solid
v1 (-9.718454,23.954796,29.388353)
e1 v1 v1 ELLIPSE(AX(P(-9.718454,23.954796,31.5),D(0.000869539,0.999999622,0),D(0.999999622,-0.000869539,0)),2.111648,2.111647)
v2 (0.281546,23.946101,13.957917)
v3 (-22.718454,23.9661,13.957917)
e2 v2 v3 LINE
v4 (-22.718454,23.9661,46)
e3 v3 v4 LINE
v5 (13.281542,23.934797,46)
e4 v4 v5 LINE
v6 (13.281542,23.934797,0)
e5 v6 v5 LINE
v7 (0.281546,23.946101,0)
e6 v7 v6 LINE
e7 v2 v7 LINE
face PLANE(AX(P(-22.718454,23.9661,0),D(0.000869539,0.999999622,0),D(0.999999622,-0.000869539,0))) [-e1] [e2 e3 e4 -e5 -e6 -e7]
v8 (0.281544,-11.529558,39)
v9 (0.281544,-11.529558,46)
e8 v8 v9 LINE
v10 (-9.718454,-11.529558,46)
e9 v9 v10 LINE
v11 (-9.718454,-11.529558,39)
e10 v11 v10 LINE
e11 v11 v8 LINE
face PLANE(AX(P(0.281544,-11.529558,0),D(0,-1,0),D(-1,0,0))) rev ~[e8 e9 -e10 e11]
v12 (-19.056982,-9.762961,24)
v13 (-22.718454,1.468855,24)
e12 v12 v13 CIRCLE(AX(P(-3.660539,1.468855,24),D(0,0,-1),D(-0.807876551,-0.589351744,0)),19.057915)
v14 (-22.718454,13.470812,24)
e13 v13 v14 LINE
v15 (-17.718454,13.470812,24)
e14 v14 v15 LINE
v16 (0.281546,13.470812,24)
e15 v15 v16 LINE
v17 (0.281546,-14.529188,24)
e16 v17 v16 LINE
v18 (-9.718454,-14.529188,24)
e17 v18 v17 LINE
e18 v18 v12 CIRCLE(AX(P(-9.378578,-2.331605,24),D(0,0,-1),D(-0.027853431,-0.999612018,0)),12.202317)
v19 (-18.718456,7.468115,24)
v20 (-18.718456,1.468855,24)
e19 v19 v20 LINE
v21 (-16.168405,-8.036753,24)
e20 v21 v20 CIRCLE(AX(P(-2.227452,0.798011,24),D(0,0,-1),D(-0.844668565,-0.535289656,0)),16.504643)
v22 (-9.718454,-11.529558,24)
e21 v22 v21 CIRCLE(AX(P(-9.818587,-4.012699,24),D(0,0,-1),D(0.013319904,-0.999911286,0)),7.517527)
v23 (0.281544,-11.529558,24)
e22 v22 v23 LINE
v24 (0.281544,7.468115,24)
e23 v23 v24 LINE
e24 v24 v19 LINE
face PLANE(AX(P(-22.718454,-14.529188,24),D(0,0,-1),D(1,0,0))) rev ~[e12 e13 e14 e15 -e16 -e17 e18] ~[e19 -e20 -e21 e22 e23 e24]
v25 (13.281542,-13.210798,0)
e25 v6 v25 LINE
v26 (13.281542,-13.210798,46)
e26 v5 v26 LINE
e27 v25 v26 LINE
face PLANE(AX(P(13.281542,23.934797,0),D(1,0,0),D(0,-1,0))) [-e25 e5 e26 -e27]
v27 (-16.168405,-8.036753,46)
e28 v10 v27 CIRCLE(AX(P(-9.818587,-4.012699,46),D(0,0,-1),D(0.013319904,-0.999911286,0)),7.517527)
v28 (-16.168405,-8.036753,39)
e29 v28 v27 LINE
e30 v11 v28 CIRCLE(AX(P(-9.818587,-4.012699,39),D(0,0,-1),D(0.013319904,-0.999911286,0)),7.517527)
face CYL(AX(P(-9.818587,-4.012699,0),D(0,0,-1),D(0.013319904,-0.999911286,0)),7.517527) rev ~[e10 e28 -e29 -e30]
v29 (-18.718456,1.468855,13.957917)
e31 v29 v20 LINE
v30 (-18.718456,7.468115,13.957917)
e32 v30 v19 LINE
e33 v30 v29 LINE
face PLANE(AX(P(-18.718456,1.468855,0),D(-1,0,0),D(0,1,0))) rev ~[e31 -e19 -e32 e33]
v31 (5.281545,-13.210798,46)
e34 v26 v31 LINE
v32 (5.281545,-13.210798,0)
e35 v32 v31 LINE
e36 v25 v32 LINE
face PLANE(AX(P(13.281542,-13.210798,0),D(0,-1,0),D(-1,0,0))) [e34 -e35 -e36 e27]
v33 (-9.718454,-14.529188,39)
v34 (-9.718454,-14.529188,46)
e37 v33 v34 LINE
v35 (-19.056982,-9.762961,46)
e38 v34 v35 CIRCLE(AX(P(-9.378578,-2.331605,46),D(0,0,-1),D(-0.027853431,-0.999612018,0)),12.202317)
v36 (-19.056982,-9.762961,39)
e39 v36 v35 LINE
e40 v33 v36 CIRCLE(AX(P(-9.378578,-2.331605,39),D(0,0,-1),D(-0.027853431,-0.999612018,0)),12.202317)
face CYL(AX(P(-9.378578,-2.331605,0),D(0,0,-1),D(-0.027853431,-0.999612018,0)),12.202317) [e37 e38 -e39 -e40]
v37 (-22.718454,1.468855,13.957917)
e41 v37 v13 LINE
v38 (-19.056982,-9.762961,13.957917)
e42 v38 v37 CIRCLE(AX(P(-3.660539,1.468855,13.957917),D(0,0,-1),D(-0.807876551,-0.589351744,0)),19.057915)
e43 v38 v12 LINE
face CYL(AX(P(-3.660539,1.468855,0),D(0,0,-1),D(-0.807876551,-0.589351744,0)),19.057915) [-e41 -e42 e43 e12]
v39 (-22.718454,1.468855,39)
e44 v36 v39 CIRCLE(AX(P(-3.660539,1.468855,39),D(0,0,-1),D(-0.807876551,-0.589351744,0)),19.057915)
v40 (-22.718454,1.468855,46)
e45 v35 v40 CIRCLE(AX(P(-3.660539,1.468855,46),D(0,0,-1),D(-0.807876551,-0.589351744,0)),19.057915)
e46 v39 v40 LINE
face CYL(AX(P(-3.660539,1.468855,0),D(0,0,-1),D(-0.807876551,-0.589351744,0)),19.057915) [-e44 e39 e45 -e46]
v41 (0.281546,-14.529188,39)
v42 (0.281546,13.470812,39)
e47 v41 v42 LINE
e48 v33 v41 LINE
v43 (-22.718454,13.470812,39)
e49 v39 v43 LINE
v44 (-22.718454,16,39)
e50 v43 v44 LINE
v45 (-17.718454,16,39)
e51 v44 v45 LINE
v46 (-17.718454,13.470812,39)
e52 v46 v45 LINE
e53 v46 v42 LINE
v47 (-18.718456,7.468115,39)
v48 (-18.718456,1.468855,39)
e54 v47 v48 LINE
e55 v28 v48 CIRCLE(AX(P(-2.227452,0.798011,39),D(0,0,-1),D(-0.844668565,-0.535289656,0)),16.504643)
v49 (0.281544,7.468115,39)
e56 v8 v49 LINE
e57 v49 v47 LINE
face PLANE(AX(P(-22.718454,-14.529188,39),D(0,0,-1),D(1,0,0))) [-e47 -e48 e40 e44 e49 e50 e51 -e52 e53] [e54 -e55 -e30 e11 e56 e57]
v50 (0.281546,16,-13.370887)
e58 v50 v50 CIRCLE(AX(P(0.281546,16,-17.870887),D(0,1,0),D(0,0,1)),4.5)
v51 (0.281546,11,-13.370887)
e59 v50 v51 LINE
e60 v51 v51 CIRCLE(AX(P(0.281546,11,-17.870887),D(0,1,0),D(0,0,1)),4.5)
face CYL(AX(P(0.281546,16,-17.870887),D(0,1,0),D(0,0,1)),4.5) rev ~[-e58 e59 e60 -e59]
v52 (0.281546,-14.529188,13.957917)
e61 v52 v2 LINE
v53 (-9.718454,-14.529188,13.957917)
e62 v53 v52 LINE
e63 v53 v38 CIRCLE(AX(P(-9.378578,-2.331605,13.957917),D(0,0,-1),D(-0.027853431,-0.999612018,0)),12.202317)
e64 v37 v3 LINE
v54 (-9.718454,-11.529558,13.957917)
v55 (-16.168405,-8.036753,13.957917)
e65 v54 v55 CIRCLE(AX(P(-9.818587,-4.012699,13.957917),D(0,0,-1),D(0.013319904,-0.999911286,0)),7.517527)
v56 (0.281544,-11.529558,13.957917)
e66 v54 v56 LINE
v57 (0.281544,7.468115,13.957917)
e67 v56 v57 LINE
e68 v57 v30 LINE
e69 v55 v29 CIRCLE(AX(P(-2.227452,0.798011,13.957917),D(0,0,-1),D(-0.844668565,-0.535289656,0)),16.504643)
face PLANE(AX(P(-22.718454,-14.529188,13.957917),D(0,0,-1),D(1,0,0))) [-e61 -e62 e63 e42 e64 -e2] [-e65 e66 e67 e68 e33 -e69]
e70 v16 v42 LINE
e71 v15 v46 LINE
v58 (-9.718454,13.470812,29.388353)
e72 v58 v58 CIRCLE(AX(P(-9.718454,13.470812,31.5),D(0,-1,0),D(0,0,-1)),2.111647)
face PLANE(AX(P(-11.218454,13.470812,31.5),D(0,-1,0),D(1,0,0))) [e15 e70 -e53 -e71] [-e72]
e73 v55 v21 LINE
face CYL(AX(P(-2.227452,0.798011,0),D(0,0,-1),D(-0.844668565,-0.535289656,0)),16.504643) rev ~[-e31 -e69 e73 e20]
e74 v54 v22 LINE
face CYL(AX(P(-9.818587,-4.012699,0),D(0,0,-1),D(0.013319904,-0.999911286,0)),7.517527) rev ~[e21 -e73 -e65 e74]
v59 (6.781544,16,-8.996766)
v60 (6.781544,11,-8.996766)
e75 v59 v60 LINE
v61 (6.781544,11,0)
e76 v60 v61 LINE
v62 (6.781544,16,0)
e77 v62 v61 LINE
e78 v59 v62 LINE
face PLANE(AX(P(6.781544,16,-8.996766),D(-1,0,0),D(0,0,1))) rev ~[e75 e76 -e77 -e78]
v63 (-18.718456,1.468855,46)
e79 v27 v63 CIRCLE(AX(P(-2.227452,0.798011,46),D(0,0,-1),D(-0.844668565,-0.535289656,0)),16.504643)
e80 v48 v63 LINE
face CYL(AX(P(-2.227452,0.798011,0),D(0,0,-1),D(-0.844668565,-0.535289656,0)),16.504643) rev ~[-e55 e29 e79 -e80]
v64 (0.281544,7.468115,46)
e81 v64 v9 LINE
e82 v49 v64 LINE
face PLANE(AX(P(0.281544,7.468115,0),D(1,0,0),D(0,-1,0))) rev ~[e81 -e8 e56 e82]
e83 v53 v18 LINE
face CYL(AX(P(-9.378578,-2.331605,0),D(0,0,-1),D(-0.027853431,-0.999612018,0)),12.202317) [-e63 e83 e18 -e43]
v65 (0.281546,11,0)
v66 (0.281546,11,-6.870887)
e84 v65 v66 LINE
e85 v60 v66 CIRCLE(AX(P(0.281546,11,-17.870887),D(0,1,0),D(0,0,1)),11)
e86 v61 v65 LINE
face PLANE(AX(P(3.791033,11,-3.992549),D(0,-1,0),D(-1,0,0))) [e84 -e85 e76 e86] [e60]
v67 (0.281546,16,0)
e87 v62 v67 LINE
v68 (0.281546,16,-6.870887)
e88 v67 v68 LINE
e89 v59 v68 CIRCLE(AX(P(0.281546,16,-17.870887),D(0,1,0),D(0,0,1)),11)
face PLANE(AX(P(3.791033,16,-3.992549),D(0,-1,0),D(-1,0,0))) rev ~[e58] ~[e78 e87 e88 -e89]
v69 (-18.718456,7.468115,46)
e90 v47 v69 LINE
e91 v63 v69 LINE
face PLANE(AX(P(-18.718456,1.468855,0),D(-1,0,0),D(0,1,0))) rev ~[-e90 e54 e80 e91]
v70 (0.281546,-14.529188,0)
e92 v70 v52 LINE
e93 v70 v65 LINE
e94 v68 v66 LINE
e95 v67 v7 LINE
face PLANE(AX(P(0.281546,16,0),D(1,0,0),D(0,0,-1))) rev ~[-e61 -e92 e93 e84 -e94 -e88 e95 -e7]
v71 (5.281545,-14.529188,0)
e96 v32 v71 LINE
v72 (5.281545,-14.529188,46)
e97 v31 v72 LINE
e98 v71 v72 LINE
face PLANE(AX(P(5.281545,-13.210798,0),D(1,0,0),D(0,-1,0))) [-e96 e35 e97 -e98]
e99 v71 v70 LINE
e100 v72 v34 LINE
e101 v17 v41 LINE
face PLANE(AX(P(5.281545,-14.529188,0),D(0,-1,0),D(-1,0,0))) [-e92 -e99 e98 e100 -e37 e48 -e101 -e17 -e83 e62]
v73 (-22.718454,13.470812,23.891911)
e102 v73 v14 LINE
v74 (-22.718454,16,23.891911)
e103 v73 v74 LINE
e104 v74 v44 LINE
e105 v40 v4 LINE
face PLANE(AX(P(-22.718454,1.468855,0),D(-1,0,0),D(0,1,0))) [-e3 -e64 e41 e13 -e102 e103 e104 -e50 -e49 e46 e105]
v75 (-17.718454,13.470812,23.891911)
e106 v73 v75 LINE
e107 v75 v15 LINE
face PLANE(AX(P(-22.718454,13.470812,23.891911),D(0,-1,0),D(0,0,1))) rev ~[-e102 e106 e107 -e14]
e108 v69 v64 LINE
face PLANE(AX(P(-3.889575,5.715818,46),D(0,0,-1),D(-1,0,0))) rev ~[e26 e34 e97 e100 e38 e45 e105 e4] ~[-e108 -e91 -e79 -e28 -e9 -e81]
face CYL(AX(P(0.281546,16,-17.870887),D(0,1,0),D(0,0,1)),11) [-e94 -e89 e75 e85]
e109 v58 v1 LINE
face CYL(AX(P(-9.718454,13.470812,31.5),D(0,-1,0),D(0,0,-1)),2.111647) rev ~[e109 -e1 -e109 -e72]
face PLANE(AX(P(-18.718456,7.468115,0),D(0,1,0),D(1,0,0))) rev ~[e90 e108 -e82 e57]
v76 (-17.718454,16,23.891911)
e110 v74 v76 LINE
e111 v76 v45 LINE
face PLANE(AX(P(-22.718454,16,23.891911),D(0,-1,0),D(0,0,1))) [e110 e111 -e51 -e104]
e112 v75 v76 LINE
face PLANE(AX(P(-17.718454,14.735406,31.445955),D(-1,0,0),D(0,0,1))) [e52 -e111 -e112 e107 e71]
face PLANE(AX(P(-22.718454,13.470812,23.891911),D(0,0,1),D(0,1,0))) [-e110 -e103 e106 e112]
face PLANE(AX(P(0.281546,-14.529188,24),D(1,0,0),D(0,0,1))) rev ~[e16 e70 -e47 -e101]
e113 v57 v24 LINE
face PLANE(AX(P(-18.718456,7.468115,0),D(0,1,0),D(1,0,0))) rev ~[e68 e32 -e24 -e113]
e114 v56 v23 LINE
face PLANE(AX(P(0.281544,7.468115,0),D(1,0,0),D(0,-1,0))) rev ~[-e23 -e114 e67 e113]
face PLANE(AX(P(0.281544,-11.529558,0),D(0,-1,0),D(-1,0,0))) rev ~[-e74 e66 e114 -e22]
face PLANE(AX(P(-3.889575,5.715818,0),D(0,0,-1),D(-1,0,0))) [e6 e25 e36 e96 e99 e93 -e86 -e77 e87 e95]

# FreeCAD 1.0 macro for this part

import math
import FreeCAD as App
import Part
import Sketcher
from FreeCAD import Vector


def add_polygon(sketch, points):
    """Adds a closed chain of lines whose ends are joined by coincident constraints."""
    first, n = sketch.GeometryCount, len(points)
    for a, b in zip(points, points[1:] + points[:1]):
        sketch.addGeometry(Part.LineSegment(App.Vector(*a, 0), App.Vector(*b, 0)), False)
    for i in range(n):
        sketch.addConstraint(Sketcher.Constraint("Coincident", first + i, 2, first + (i + 1) % n, 1))

doc = App.newDocument("Part")
body = doc.addObject("PartDesign::Body", "Body")

# Sketch on XY plane
sketch1 = body.newObject("Sketcher::SketchObject", "Sketch")
sketch1.AttachmentSupport = (doc.getObject("XY_Plane"), [""])
sketch1.MapMode = "FlatFace"
sketch1.addGeometry([
    Part.LineSegment(Vector(13.3, 23.9, 0), Vector(-22.7, 24, 0)),  # 0
    Part.LineSegment(Vector(-22.7, 24, 0), Vector(-22.7, 1.5, 0)),  # 1
    Part.ArcOfCircle(Part.Circle(Vector(-3.7, 1.5, 0), Vector(0, 0, 1), 19.1), math.radians(180), math.radians(216)),  # 2
    Part.ArcOfCircle(Part.Circle(Vector(-9.4, -2.3, 0), Vector(0, 0, 1), 12.2), math.radians(-142), math.radians(-92)),  # 3
    Part.LineSegment(Vector(-9.7, -14.5, 0), Vector(5.3, -14.5, 0)),  # 4
    Part.LineSegment(Vector(5.3, -14.5, 0), Vector(5.3, -13.2, 0)),  # 5
    Part.LineSegment(Vector(5.3, -13.2, 0), Vector(13.3, -13.2, 0)),  # 6
    Part.LineSegment(Vector(13.3, -13.2, 0), Vector(13.3, 23.9, 0)),  # 7
    Part.LineSegment(Vector(-18.7, 7.5, 0), Vector(0.3, 7.5, 0)),  # 8
    Part.LineSegment(Vector(0.3, 7.5, 0), Vector(0.3, -11.5, 0)),  # 9
    Part.LineSegment(Vector(0.3, -11.5, 0), Vector(-9.7, -11.5, 0)),  # 10
    Part.ArcOfCircle(Part.Circle(Vector(-9.8, -4, 0), Vector(0, 0, 1), 7.5), math.radians(-148), math.radians(-89)),  # 11
    Part.ArcOfCircle(Part.Circle(Vector(-2.2, 0.8, 0), Vector(0, 0, 1), 16.5), math.radians(178), math.radians(212)),  # 12
    Part.LineSegment(Vector(-18.7, 1.5, 0), Vector(-18.7, 7.5, 0)),  # 13
], False)
sketch1.addConstraint([
    Sketcher.Constraint("Coincident", 0, 2, 1, 1),
    Sketcher.Constraint("Tangent", 1, 2, 2, 1),
    Sketcher.Constraint("Coincident", 2, 2, 3, 1),
    Sketcher.Constraint("Coincident", 3, 2, 4, 1),
    Sketcher.Constraint("Coincident", 4, 2, 5, 1),
    Sketcher.Constraint("Coincident", 5, 2, 6, 1),
    Sketcher.Constraint("Coincident", 6, 2, 7, 1),
    Sketcher.Constraint("Coincident", 7, 2, 0, 1),
    Sketcher.Constraint("Coincident", 8, 2, 9, 1),
    Sketcher.Constraint("Coincident", 9, 2, 10, 1),
    Sketcher.Constraint("Coincident", 10, 2, 11, 2),
    Sketcher.Constraint("Tangent", 11, 1, 12, 2),
    Sketcher.Constraint("Coincident", 12, 1, 13, 1),
    Sketcher.Constraint("Coincident", 13, 2, 8, 1),
    Sketcher.Constraint("Vertical", 1),
    Sketcher.Constraint("Horizontal", 4),
    Sketcher.Constraint("Vertical", 5),
    Sketcher.Constraint("Horizontal", 6),
    Sketcher.Constraint("Vertical", 7),
    Sketcher.Constraint("Horizontal", 8),
    Sketcher.Constraint("Vertical", 9),
    Sketcher.Constraint("Horizontal", 10),
    Sketcher.Constraint("Vertical", 13),
    Sketcher.Constraint("Horizontal", 1, 2, 12, 1),
    Sketcher.Constraint("Vertical", 3, 2, 10, 2),
    Sketcher.Constraint("DistanceX", 4, 1, 4, 2, 15.0),
    Sketcher.Constraint("DistanceX", 8, 1, 8, 2, 19.0),
    Sketcher.Constraint("DistanceX", 10, 2, 10, 1, 9.999998),
    Sketcher.Constraint("DistanceX", 8, 2, 7, 2, 12.999998),
    Sketcher.Constraint("DistanceX", 1, 2, 12, 1, 3.999998),
    Sketcher.Constraint("Radius", 2, 19.057915),
    Sketcher.Constraint("Radius", 3, 12.202317),
    Sketcher.Constraint("Radius", 11, 7.517527),
    Sketcher.Constraint("Radius", 12, 16.504643),
    Sketcher.Constraint("DistanceX", 0, 2, 12, 3, 20.491002),
    Sketcher.Constraint("DistanceY", 5, 1, 5, 2, 1.31839),
    Sketcher.Constraint("DistanceY", 13, 1, 13, 2, 5.99926),
    Sketcher.Constraint("DistanceY", 11, 3, -1, 1, 4.012699),
    Sketcher.Constraint("DistanceY", -1, 1, 0, 2, 23.9661),
    Sketcher.Constraint("DistanceY", 5, 2, -1, 1, 13.210798),
    Sketcher.Constraint("DistanceY", 3, 2, 12, 3, 15.3272),
    Sketcher.Constraint("DistanceY", 7, 1, 7, 2, 37.145595),
    Sketcher.Constraint("DistanceX", 2, 3, -1, 1, 3.660539),
    Sketcher.Constraint("DistanceX", 2, 2, -1, 1, 19.056982),
])
pad1 = body.newObject("PartDesign::Pad", "Pad")
pad1.Profile = sketch1
pad1.Length = 46

# Sketch on XZ plane
sketch2 = body.newObject("Sketcher::SketchObject", "Sketch001")
sketch2.AttachmentSupport = (doc.getObject("XZ_Plane"), [""])
sketch2.MapMode = "FlatFace"
sketch2.AttachmentOffset = App.Placement(Vector(0, 0, 14.529188), App.Rotation())
add_polygon(sketch2, [(-23, 39), (-23, 24), (0, 24), (0, 39)])  # lines 0-3
sketch2.addConstraint([
    Sketcher.Constraint("Vertical", 0),
    Sketcher.Constraint("Horizontal", 1),
    Sketcher.Constraint("Vertical", 2),
    Sketcher.Constraint("Horizontal", 3),
    Sketcher.Constraint("DistanceX", 1, 1, 1, 2, 23.0),
    Sketcher.Constraint("DistanceY", 0, 2, 0, 1, 15.0),
    Sketcher.Constraint("DistanceY", -1, 1, 0, 2, 24.0),
    Sketcher.Constraint("DistanceX", 0, 2, -1, 1, 22.718454),
])
pocket1 = body.newObject("PartDesign::Pocket", "Pocket")
pocket1.Profile = sketch2
pocket1.Length = 28

# Sketch on XZ plane
sketch3 = body.newObject("Sketcher::SketchObject", "Sketch002")
sketch3.AttachmentSupport = (doc.getObject("XZ_Plane"), [""])
sketch3.MapMode = "FlatFace"
sketch3.AttachmentOffset = App.Placement(Vector(0, 0, 14.529188), App.Rotation())
add_polygon(sketch3, [(-23, 14), (-23, 0), (0, 0), (0, 14)])  # lines 0-3
sketch3.addConstraint([
    Sketcher.Constraint("Vertical", 0),
    Sketcher.Constraint("Horizontal", 1),
    Sketcher.Constraint("Vertical", 2),
    Sketcher.Constraint("Horizontal", 3),
    Sketcher.Constraint("PointOnObject", 0, 2, -1),
    Sketcher.Constraint("DistanceX", 1, 1, 1, 2, 23.0),
    Sketcher.Constraint("DistanceY", 0, 2, 0, 1, 13.957917),
    Sketcher.Constraint("DistanceX", 0, 2, -1, 1, 22.718454),
])
pocket2 = body.newObject("PartDesign::Pocket", "Pocket001")
pocket2.Profile = sketch3
pocket2.Length = 69

# Sketch on YZ plane
sketch4 = body.newObject("Sketcher::SketchObject", "Sketch003")
sketch4.AttachmentSupport = (doc.getObject("YZ_Plane"), [""])
sketch4.MapMode = "FlatFace"
sketch4.AttachmentOffset = App.Placement(Vector(0, 0, -22.718454), App.Rotation())
add_polygon(sketch4, [(16, 23.9), (13.5, 23.9), (13.5, 39), (16, 39)])  # lines 0-3
sketch4.addConstraint([
    Sketcher.Constraint("Horizontal", 0),
    Sketcher.Constraint("Vertical", 1),
    Sketcher.Constraint("Horizontal", 2),
    Sketcher.Constraint("Vertical", 3),
    Sketcher.Constraint("DistanceY", -1, 1, 1, 2, 39.0),
    Sketcher.Constraint("DistanceX", -1, 1, 2, 2, 16.0),
    Sketcher.Constraint("DistanceX", 0, 2, 0, 1, 2.529188),
    Sketcher.Constraint("DistanceY", 1, 1, 1, 2, 15.108089),
])
pocket3 = body.newObject("PartDesign::Pocket", "Pocket002")
pocket3.Profile = sketch4
pocket3.Length = 5
pocket3.Reversed = True

# Sketch on XZ plane
sketch5 = body.newObject("Sketcher::SketchObject", "Sketch004")
sketch5.AttachmentSupport = (doc.getObject("XZ_Plane"), [""])
sketch5.MapMode = "FlatFace"
sketch5.AttachmentOffset = App.Placement(Vector(0, 0, -13.470812), App.Rotation())
sketch5.addGeometry(Part.Circle(Vector(-9.7, 31.5, 0), Vector(0, 0, 1), 2.1), False)
sketch5.addConstraint([
    Sketcher.Constraint("DistanceY", -1, 1, 0, 3, 31.5),
    Sketcher.Constraint("Diameter", 0, 4.223294),
    Sketcher.Constraint("DistanceX", 0, 3, -1, 1, 9.718454),
])
pocket4 = body.newObject("PartDesign::Pocket", "Pocket003")
pocket4.Profile = sketch5
pocket4.Length = 22
body2 = doc.addObject("PartDesign::Body", "Body001")

# Sketch on XZ plane
sketch6 = body2.newObject("Sketcher::SketchObject", "Sketch005")
sketch6.AttachmentSupport = (doc.getObject("XZ_Plane001"), [""])
sketch6.MapMode = "FlatFace"
sketch6.AttachmentOffset = App.Placement(Vector(0, 0, -16), App.Rotation())
sketch6.addGeometry([
    Part.Circle(Vector(0.3, -17.9, 0), Vector(0, 0, 1), 11),
    Part.Circle(Vector(0.3, -17.9, 0), Vector(0, 0, 1), 4.5),
], False)
sketch6.addConstraint([
    Sketcher.Constraint("Coincident", 1, 3, 0, 3),
    Sketcher.Constraint("Diameter", 0, 22.0),
    Sketcher.Constraint("Diameter", 1, 9.0),
    Sketcher.Constraint("DistanceX", -1, 1, 0, 3, 0.281546),
    Sketcher.Constraint("DistanceY", 0, 3, -1, 1, 17.870887),
])
pad2 = body2.newObject("PartDesign::Pad", "Pad001")
pad2.Profile = sketch6
pad2.Length = 5
body.AllowCompound = True
doc.recompute()

boolean = body.newObject("PartDesign::Boolean", "Boolean")
boolean.Type = "Fuse"
boolean.addObjects([body2])

# Sketch on XZ plane
sketch7 = body.newObject("Sketcher::SketchObject", "Sketch006")
sketch7.AttachmentSupport = (doc.getObject("XZ_Plane"), [""])
sketch7.MapMode = "FlatFace"
sketch7.AttachmentOffset = App.Placement(Vector(0, 0, -16), App.Rotation())
sketch7.addGeometry([
    Part.LineSegment(Vector(0, -7, 0), Vector(0, 0, 0)),
    Part.LineSegment(Vector(0, 0, 0), Vector(7, 0, 0)),
    Part.LineSegment(Vector(7, 0, 0), Vector(7, -9, 0)),
    Part.ArcOfCircle(Part.Circle(Vector(0, -18, 0), Vector(0, 0, 1), 11), math.radians(54), math.radians(90)),
], False)
sketch7.addConstraint([
    Sketcher.Constraint("Coincident", 0, 2, 1, 1),
    Sketcher.Constraint("Coincident", 1, 2, 2, 1),
    Sketcher.Constraint("Coincident", 2, 2, 3, 1),
    Sketcher.Constraint("Coincident", 3, 2, 0, 1),
    Sketcher.Constraint("Vertical", 0),
    Sketcher.Constraint("Horizontal", 1),
    Sketcher.Constraint("Vertical", 2),
    Sketcher.Constraint("PointOnObject", 0, 2, -1),
    Sketcher.Constraint("Vertical", 3, 3, 0, 2),
    Sketcher.Constraint("Radius", 3, 11.0),
    Sketcher.Constraint("DistanceX", 1, 1, 1, 2, 6.499998),
    Sketcher.Constraint("DistanceY", 0, 1, 0, 2, 6.870887),
    Sketcher.Constraint("DistanceX", -1, 1, 3, 3, 0.281546),
])
pad3 = body.newObject("PartDesign::Pad", "Pad002")
pad3.Profile = sketch7
pad3.Length = 5

doc.recompute()
